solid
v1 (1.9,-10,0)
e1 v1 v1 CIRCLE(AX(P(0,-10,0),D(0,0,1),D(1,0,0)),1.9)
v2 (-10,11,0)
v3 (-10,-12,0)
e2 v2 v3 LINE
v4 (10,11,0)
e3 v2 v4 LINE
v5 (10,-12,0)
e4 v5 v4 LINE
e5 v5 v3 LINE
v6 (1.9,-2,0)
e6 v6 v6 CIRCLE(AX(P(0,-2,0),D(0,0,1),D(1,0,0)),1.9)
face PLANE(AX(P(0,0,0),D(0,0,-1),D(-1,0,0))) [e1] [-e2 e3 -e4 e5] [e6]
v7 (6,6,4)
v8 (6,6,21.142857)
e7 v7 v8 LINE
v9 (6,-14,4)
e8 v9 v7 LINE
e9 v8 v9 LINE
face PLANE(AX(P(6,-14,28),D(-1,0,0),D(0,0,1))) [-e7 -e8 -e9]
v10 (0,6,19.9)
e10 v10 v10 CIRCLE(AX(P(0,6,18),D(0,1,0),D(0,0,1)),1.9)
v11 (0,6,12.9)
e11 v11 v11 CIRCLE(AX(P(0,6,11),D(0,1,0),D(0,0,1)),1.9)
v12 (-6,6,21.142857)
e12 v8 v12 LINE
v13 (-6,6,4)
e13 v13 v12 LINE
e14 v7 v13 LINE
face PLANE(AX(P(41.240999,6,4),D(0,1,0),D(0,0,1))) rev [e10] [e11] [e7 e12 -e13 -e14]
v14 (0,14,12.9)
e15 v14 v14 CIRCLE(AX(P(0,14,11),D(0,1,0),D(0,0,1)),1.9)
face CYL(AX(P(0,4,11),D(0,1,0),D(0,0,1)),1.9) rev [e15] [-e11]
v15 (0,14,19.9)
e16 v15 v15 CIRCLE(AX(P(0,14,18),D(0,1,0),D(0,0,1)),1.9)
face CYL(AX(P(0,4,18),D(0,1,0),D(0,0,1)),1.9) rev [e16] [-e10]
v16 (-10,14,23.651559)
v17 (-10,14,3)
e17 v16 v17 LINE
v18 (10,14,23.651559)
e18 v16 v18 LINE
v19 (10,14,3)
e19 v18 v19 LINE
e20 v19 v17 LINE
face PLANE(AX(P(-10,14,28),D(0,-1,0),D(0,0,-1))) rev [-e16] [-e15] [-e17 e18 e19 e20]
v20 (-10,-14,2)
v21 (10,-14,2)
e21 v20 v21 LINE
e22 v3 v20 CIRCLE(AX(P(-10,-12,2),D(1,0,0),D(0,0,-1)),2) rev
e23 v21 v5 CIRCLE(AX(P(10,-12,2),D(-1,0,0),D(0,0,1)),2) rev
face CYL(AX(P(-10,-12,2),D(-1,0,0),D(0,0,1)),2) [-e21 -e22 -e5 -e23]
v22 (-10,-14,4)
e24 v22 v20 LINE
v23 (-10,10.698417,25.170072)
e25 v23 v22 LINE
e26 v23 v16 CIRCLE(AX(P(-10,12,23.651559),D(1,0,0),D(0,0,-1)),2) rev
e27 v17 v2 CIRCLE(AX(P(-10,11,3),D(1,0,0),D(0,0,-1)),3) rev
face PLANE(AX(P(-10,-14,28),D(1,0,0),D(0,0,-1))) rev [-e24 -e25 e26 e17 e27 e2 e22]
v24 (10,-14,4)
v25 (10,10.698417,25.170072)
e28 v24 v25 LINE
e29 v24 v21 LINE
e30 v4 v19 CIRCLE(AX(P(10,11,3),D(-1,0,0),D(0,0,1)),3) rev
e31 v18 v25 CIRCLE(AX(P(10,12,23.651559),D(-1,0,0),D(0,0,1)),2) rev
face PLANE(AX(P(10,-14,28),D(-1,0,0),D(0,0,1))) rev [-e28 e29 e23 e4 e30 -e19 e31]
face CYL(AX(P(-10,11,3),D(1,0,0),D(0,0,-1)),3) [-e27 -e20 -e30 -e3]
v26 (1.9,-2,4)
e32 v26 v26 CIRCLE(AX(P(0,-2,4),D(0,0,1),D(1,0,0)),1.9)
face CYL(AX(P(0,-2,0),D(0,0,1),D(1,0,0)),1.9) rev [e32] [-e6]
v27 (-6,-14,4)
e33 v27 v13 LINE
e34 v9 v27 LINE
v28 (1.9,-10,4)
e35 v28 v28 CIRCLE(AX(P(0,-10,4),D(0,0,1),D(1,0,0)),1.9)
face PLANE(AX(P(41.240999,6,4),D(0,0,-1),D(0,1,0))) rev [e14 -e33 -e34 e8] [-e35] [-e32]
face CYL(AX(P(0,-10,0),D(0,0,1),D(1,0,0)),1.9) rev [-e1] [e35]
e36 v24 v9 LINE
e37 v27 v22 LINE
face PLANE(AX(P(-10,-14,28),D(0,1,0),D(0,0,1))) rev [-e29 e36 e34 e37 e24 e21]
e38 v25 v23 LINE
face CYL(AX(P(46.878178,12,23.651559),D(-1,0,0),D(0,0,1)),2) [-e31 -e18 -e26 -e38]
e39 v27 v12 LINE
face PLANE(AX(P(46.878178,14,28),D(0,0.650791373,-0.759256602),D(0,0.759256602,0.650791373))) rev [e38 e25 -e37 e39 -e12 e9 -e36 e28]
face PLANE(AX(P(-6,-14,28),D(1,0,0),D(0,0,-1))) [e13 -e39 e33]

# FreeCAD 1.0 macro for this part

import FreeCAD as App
import Part
import Sketcher

V = App.Vector
Q = App.Units.Quantity


def edges_at(feature, points):
    """Names of the edges that pass closest to the given points."""
    edges = feature.Shape.Edges
    near = lambda p: min(range(len(edges)), key=lambda i: edges[i].distToShape(Part.Vertex(*p))[0])
    return sorted({f"Edge{near(p) + 1}" for p in points})


def add_polygon(sketch, points):
    """Adds a closed chain of lines whose ends are joined by coincident constraints."""
    first, n = sketch.GeometryCount, len(points)
    for a, b in zip(points, points[1:] + points[:1]):
        sketch.addGeometry(Part.LineSegment(App.Vector(*a, 0), App.Vector(*b, 0)), False)
    for i in range(n):
        sketch.addConstraint(Sketcher.Constraint("Coincident", first + i, 2, first + (i + 1) % n, 1))

doc = App.newDocument("Part")
body = doc.addObject("PartDesign::Body", "Body")

sketch1 = doc.addObject("Sketcher::SketchObject", "Sketch")
body.addObject(sketch1)
sketch1.AttachmentSupport = (doc.XY_Plane, [""])
sketch1.MapMode = "FlatFace"
add_polygon(sketch1, [(-10, 14), (-10, -14), (10, -14), (10, 14)])
sketch1.addConstraint(Sketcher.Constraint("Vertical", 0))
sketch1.addConstraint(Sketcher.Constraint("Horizontal", 1))
sketch1.addConstraint(Sketcher.Constraint("Vertical", 2))
sketch1.addConstraint(Sketcher.Constraint("Horizontal", 3))
sketch1.addConstraint(Sketcher.Constraint("Symmetric", 0, 2, 2, 2, -1, 1))
sketch1.addConstraint(Sketcher.Constraint("DistanceX", 1, 1, 1, 2, Q("20 mm")))
sketch1.addConstraint(Sketcher.Constraint("DistanceY", 0, 2, 0, 1, Q("28 mm")))
pad1 = doc.addObject("PartDesign::Pad", "Pad")
body.addObject(pad1)
pad1.Profile = sketch1
pad1.Length = 28

sketch2 = doc.addObject("Sketcher::SketchObject", "Sketch001")
body.addObject(sketch2)
sketch2.AttachmentSupport = (doc.YZ_Plane, [""])
sketch2.MapMode = "FlatFace"
add_polygon(sketch2, [(6, 4), (-14, 4), (-14, 28), (6, 28)])
sketch2.addConstraint(Sketcher.Constraint("Horizontal", 0))
sketch2.addConstraint(Sketcher.Constraint("Vertical", 1))
sketch2.addConstraint(Sketcher.Constraint("Horizontal", 2))
sketch2.addConstraint(Sketcher.Constraint("Vertical", 3))
sketch2.addConstraint(Sketcher.Constraint("DistanceX", 0, 2, 0, 1, Q("20 mm")))
sketch2.addConstraint(Sketcher.Constraint("DistanceY", 1, 1, 1, 2, Q("24 mm")))
sketch2.addConstraint(Sketcher.Constraint("DistanceX", 0, 2, -1, 1, Q("14 mm")))
sketch2.addConstraint(Sketcher.Constraint("DistanceY", -1, 1, 0, 2, Q("4 mm")))
pocket1 = doc.addObject("PartDesign::Pocket", "Pocket")
body.addObject(pocket1)
pocket1.Profile = sketch2
pocket1.Type = "TwoLengths"
pocket1.Length = 6
pocket1.Length2 = 6

sketch3 = doc.addObject("Sketcher::SketchObject", "Sketch002")
body.addObject(sketch3)
sketch3.AttachmentSupport = (doc.YZ_Plane, [""])
sketch3.MapMode = "FlatFace"
sketch3.AttachmentOffset = App.Placement(V(0, 0, -10), App.Rotation())
add_polygon(sketch3, [(14, 28), (-14, 4), (-14, 28)])
sketch3.addConstraint(Sketcher.Constraint("Vertical", 1))
sketch3.addConstraint(Sketcher.Constraint("Horizontal", 2))
sketch3.addConstraint(Sketcher.Constraint("DistanceX", 2, 1, 2, 2, Q("28 mm")))
sketch3.addConstraint(Sketcher.Constraint("DistanceY", 1, 1, 1, 2, Q("24 mm")))
sketch3.addConstraint(Sketcher.Constraint("DistanceX", 0, 2, -1, 1, Q("14 mm")))
sketch3.addConstraint(Sketcher.Constraint("DistanceY", -1, 1, 0, 2, Q("4 mm")))
pocket2 = doc.addObject("PartDesign::Pocket", "Pocket001")
body.addObject(pocket2)
pocket2.Profile = sketch3
pocket2.Length = 20
pocket2.Reversed = True
doc.recompute()

fillet = doc.addObject("PartDesign::Fillet", "Fillet")
body.addObject(fillet)
fillet.Base = (pocket2, edges_at(pocket2, [(0, 14, 28)]))
fillet.Radius = 2

sketch4 = doc.addObject("Sketcher::SketchObject", "Sketch003")
body.addObject(sketch4)
sketch4.AttachmentSupport = (doc.XZ_Plane, [""])
sketch4.MapMode = "FlatFace"
sketch4.AttachmentOffset = App.Placement(V(0, 0, -14), App.Rotation())
sketch4.addGeometry(Part.Circle(V(0, 11, 0), V(0, 0, 1), 1.9), False)
sketch4.addGeometry(Part.Circle(V(0, 18, 0), V(0, 0, 1), 1.9), False)
sketch4.addConstraint(Sketcher.Constraint("Equal", 0, 1))
sketch4.addConstraint(Sketcher.Constraint("PointOnObject", 0, 3, -2))
sketch4.addConstraint(Sketcher.Constraint("PointOnObject", 1, 3, -2))
sketch4.addConstraint(Sketcher.Constraint("Diameter", 0, Q("3.8 mm")))
sketch4.addConstraint(Sketcher.Constraint("DistanceY", -1, 1, 0, 3, Q("11 mm")))
sketch4.addConstraint(Sketcher.Constraint("DistanceY", -1, 1, 1, 3, Q("18 mm")))
pocket3 = doc.addObject("PartDesign::Pocket", "Pocket002")
body.addObject(pocket3)
pocket3.Profile = sketch4
pocket3.Length = 10
pocket3.Reversed = True

sketch5 = doc.addObject("Sketcher::SketchObject", "Sketch004")
body.addObject(sketch5)
sketch5.AttachmentSupport = (doc.XY_Plane, [""])
sketch5.MapMode = "FlatFace"
sketch5.AttachmentOffset = App.Placement(V(0, 0, 4), App.Rotation())
sketch5.addGeometry(Part.Circle(V(0, -2, 0), V(0, 0, 1), 1.9), False)
sketch5.addGeometry(Part.Circle(V(0, -10, 0), V(0, 0, 1), 1.9), False)
sketch5.addConstraint(Sketcher.Constraint("Equal", 0, 1))
sketch5.addConstraint(Sketcher.Constraint("PointOnObject", 0, 3, -2))
sketch5.addConstraint(Sketcher.Constraint("PointOnObject", 1, 3, -2))
sketch5.addConstraint(Sketcher.Constraint("Diameter", 0, Q("3.8 mm")))
sketch5.addConstraint(Sketcher.Constraint("DistanceY", 0, 3, -1, 1, Q("2 mm")))
sketch5.addConstraint(Sketcher.Constraint("DistanceY", 1, 3, -1, 1, Q("10 mm")))
pocket4 = doc.addObject("PartDesign::Pocket", "Pocket003")
body.addObject(pocket4)
pocket4.Profile = sketch5
pocket4.Type = "ThroughAll"
doc.recompute()

fillet2 = doc.addObject("PartDesign::Fillet", "Fillet001")
body.addObject(fillet2)
fillet2.Base = (pocket4, edges_at(pocket4, [(0, -14, 0)]))
fillet2.Radius = 2
doc.recompute()

fillet3 = doc.addObject("PartDesign::Fillet", "Fillet002")
body.addObject(fillet3)
fillet3.Base = (fillet2, edges_at(fillet2, [(0, 14, 0)]))
fillet3.Radius = 3

doc.recompute()
